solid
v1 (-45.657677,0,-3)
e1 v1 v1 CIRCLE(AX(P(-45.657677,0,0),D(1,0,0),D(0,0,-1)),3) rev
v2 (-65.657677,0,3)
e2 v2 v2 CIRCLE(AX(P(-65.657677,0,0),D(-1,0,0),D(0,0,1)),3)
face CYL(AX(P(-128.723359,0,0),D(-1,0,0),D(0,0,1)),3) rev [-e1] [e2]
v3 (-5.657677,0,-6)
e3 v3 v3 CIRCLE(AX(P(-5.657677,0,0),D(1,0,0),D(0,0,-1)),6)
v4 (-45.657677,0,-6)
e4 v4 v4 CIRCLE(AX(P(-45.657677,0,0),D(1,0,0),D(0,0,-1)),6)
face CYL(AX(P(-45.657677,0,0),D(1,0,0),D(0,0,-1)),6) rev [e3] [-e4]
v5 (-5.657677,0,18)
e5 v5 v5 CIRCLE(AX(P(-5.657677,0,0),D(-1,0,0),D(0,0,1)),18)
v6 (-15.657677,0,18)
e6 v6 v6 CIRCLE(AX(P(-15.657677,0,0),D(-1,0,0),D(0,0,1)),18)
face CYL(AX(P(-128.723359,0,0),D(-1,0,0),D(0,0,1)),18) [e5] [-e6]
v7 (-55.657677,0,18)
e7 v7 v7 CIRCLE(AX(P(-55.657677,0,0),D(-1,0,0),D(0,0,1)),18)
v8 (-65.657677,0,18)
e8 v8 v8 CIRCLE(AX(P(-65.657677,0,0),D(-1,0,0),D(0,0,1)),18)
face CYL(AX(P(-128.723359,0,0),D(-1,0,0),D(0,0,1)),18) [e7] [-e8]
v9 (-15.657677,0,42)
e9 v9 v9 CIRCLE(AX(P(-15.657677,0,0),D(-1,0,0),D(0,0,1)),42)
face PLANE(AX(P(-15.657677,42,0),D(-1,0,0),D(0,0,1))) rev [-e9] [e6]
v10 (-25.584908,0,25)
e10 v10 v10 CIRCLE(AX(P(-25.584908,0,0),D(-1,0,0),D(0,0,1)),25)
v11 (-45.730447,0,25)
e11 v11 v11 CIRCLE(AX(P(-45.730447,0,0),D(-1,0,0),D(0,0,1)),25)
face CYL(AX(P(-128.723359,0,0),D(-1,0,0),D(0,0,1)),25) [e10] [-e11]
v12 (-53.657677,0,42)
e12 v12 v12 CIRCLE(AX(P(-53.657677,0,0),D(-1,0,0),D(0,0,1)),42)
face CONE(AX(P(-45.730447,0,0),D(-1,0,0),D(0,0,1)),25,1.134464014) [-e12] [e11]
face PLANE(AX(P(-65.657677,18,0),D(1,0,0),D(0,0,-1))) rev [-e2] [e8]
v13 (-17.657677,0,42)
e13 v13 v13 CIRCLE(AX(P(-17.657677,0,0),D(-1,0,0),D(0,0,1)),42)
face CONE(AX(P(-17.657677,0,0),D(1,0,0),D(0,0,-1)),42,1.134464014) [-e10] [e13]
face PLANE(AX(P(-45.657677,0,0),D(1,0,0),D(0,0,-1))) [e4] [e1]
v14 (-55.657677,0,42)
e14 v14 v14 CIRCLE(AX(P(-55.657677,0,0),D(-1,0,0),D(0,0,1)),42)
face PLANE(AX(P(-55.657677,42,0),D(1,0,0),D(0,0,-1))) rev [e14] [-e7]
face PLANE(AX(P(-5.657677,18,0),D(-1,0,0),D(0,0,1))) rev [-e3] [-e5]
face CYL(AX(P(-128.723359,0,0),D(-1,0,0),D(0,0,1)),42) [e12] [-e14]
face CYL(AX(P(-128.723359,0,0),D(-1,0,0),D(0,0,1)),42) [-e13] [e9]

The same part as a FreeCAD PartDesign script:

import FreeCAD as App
import Part
import Sketcher
Q = App.Units.Quantity

doc = App.newDocument("Part")
body = doc.addObject("PartDesign::Body", "Body")

# Sketch on XY plane
sketch1 = body.newObject("Sketcher::SketchObject", "Sketch")
sketch1.AttachmentSupport = (doc.getObject("XY_Plane"), [""])
sketch1.MapMode = "FlatFace"
sketch1.addGeometry([
    Part.LineSegment(App.Vector(-53.7, 42, 0), App.Vector(-55.7, 42, 0)),  # 0
    Part.LineSegment(App.Vector(-55.7, 42, 0), App.Vector(-55.7, 18, 0)),  # 1
    Part.LineSegment(App.Vector(-55.7, 18, 0), App.Vector(-65.7, 18, 0)),  # 2
    Part.LineSegment(App.Vector(-65.7, 18, 0), App.Vector(-65.7, 3, 0)),  # 3
    Part.LineSegment(App.Vector(-65.7, 3, 0), App.Vector(-5.7, 3, 0)),  # 4
    Part.LineSegment(App.Vector(-5.7, 3, 0), App.Vector(-5.7, 18, 0)),  # 5
    Part.LineSegment(App.Vector(-5.7, 18, 0), App.Vector(-15.7, 18, 0)),  # 6
    Part.LineSegment(App.Vector(-15.7, 18, 0), App.Vector(-15.7, 42, 0)),  # 7
    Part.LineSegment(App.Vector(-15.7, 42, 0), App.Vector(-17.7, 42, 0)),  # 8
    Part.LineSegment(App.Vector(-17.7, 42, 0), App.Vector(-25.6, 25, 0)),  # 9
    Part.LineSegment(App.Vector(-25.6, 25, 0), App.Vector(-45.7, 25, 0)),  # 10
    Part.LineSegment(App.Vector(-45.7, 25, 0), App.Vector(-53.7, 42, 0)),  # 11
], False)
sketch1.addConstraint([
    Sketcher.Constraint("Coincident", 0, 2, 1, 1),
    Sketcher.Constraint("Coincident", 1, 2, 2, 1),
    Sketcher.Constraint("Coincident", 2, 2, 3, 1),
    Sketcher.Constraint("Coincident", 3, 2, 4, 1),
    Sketcher.Constraint("Coincident", 4, 2, 5, 1),
    Sketcher.Constraint("Coincident", 5, 2, 6, 1),
    Sketcher.Constraint("Coincident", 6, 2, 7, 1),
    Sketcher.Constraint("Coincident", 7, 2, 8, 1),
    Sketcher.Constraint("Coincident", 8, 2, 9, 1),
    Sketcher.Constraint("Coincident", 9, 2, 10, 1),
    Sketcher.Constraint("Coincident", 10, 2, 11, 1),
    Sketcher.Constraint("Coincident", 11, 2, 0, 1),
    Sketcher.Constraint("Horizontal", 0),
    Sketcher.Constraint("Vertical", 1),
    Sketcher.Constraint("Horizontal", 2),
    Sketcher.Constraint("Vertical", 3),
    Sketcher.Constraint("Horizontal", 4),
    Sketcher.Constraint("Vertical", 5),
    Sketcher.Constraint("Horizontal", 6),
    Sketcher.Constraint("Vertical", 7),
    Sketcher.Constraint("Horizontal", 8),
    Sketcher.Constraint("Horizontal", 10),
    Sketcher.Constraint("Horizontal", 2, 2, 5, 2),
    Sketcher.Constraint("Horizontal", 0, 2, 7, 2),
    Sketcher.Constraint("Equal", 2, 6),
    Sketcher.Constraint("Equal", 0, 8),
    Sketcher.Constraint("Equal", 9, 11),
    Sketcher.Constraint("DistanceX", 0, 2, 0, 1, Q("2 mm")),
    Sketcher.Constraint("DistanceX", 2, 2, 2, 1, Q("10 mm")),
    Sketcher.Constraint("DistanceX", 4, 1, 4, 2, Q("60 mm")),
    Sketcher.Constraint("DistanceY", 1, 2, 1, 1, Q("24 mm")),
    Sketcher.Constraint("DistanceY", 3, 2, 3, 1, Q("15 mm")),
    Sketcher.Constraint("Angle", 9, Q("-115 deg")),
    Sketcher.Constraint("DistanceY", -1, 1, 0, 2, Q("42 mm")),
    Sketcher.Constraint("DistanceY", -1, 1, 9, 2, Q("25 mm")),
    Sketcher.Constraint("DistanceX", 0, 2, -1, 1, Q("55.657677 mm")),
])
revolution = body.newObject("PartDesign::Revolution", "Revolution")
revolution.Profile = sketch1
revolution.ReferenceAxis = (sketch1, ["H_Axis"])
revolution.Angle = 360

# Sketch on YZ plane
sketch2 = body.newObject("Sketcher::SketchObject", "Sketch001")
sketch2.AttachmentSupport = (doc.getObject("YZ_Plane"), [""])
sketch2.MapMode = "FlatFace"
sketch2.AttachmentOffset = App.Placement(App.Vector(0, 0, -5.657677), App.Rotation())
sketch2.addGeometry(Part.Circle(App.Vector(0, 0, 0), App.Vector(0, 0, 1), 6), False)
sketch2.addConstraint([
    Sketcher.Constraint("Coincident", 0, 3, -1, 1),
    Sketcher.Constraint("Diameter", 0, Q("12 mm")),
])
pocket1 = body.newObject("PartDesign::Pocket", "Pocket")
pocket1.Profile = sketch2
pocket1.Length = 40

doc.recompute()
